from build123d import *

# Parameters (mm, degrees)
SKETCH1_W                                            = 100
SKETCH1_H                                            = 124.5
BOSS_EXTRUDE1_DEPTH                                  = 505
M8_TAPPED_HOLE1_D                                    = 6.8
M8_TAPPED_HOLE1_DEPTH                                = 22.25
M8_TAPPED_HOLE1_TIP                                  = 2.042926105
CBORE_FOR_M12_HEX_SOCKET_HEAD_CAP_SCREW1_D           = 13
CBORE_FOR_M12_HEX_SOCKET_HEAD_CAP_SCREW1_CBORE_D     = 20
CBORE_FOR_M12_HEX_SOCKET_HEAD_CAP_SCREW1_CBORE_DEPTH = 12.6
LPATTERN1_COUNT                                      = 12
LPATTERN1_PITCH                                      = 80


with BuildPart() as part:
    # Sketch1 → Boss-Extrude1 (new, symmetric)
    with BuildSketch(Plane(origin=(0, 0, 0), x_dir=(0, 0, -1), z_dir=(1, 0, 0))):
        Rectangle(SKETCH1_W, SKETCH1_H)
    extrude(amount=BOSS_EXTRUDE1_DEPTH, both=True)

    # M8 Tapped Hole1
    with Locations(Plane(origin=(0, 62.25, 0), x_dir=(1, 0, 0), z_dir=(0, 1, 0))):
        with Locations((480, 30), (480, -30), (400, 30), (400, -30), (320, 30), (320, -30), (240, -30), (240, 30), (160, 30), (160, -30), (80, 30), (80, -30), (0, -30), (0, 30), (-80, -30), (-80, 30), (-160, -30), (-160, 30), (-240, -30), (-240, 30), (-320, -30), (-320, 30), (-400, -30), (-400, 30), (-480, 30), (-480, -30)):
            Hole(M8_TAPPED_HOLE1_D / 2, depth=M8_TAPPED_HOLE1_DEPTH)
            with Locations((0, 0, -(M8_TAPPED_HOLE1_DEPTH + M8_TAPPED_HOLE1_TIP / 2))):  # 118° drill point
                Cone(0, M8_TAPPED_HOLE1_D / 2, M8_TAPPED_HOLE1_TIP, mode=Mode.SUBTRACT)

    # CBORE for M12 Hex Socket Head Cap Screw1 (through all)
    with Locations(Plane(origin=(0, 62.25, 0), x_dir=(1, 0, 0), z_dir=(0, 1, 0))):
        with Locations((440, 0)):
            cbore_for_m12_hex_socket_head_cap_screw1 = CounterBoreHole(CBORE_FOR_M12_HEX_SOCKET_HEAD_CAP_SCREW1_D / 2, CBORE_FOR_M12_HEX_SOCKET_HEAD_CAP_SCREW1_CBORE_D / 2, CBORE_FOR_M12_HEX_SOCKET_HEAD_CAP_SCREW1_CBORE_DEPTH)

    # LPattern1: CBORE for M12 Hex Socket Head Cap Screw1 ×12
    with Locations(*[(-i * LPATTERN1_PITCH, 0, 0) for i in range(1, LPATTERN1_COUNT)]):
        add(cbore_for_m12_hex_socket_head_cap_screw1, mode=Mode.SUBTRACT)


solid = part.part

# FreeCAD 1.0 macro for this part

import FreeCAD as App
import Part
import Sketcher
Q = App.Units.Quantity

doc = App.newDocument("Part")
body = doc.addObject("PartDesign::Body", "Body")

# Sketch on YZ plane
sketch1 = doc.addObject("Sketcher::SketchObject", "Sketch")
body.addObject(sketch1)
sketch1.AttachmentSupport = (doc.YZ_Plane, [""])
sketch1.MapMode = "FlatFace"
sketch1.addGeometry(Part.LineSegment(App.Vector(62, 50, 0), App.Vector(-62, 50, 0)), False)
sketch1.addGeometry(Part.LineSegment(App.Vector(-62, 50, 0), App.Vector(-62, -50, 0)), False)
sketch1.addGeometry(Part.LineSegment(App.Vector(-62, -50, 0), App.Vector(62, -50, 0)), False)
sketch1.addGeometry(Part.LineSegment(App.Vector(62, -50, 0), App.Vector(62, 50, 0)), False)
sketch1.addConstraint(Sketcher.Constraint("Coincident", 0, 2, 1, 1))
sketch1.addConstraint(Sketcher.Constraint("Coincident", 1, 2, 2, 1))
sketch1.addConstraint(Sketcher.Constraint("Coincident", 2, 2, 3, 1))
sketch1.addConstraint(Sketcher.Constraint("Coincident", 3, 2, 0, 1))
sketch1.addConstraint(Sketcher.Constraint("Horizontal", 0))
sketch1.addConstraint(Sketcher.Constraint("Vertical", 1))
sketch1.addConstraint(Sketcher.Constraint("Horizontal", 2))
sketch1.addConstraint(Sketcher.Constraint("Vertical", 3))
sketch1.addConstraint(Sketcher.Constraint("Symmetric", 0, 2, 2, 2, -1, 1))
sketch1.addConstraint(Sketcher.Constraint("DistanceY", 1, 2, 1, 1, Q("100 mm")))
sketch1.addConstraint(Sketcher.Constraint("DistanceX", 0, 2, 0, 1, Q("124.5 mm")))
pad1 = doc.addObject("PartDesign::Pad", "Pad")
body.addObject(pad1)
pad1.Profile = sketch1
pad1.Length = 1010
pad1.Midplane = True

# Sketch on XZ plane
sketch2 = doc.addObject("Sketcher::SketchObject", "Sketch001")
body.addObject(sketch2)
sketch2.AttachmentSupport = (doc.XZ_Plane, [""])
sketch2.MapMode = "FlatFace"
sketch2.AttachmentOffset = App.Placement(App.Vector(0, 0, -62.25), App.Rotation())
sketch2.addGeometry(Part.Circle(App.Vector(480, -30, 0), App.Vector(0, 0, 1), 3.4), False)
sketch2.addGeometry(Part.Circle(App.Vector(480, 30, 0), App.Vector(0, 0, 1), 3.4), False)
sketch2.addGeometry(Part.Circle(App.Vector(400, -30, 0), App.Vector(0, 0, 1), 3.4), False)
sketch2.addGeometry(Part.Circle(App.Vector(400, 30, 0), App.Vector(0, 0, 1), 3.4), False)
sketch2.addGeometry(Part.Circle(App.Vector(320, -30, 0), App.Vector(0, 0, 1), 3.4), False)
sketch2.addGeometry(Part.Circle(App.Vector(320, 30, 0), App.Vector(0, 0, 1), 3.4), False)
sketch2.addGeometry(Part.Circle(App.Vector(240, 30, 0), App.Vector(0, 0, 1), 3.4), False)
sketch2.addGeometry(Part.Circle(App.Vector(240, -30, 0), App.Vector(0, 0, 1), 3.4), False)
sketch2.addGeometry(Part.Circle(App.Vector(160, -30, 0), App.Vector(0, 0, 1), 3.4), False)
sketch2.addGeometry(Part.Circle(App.Vector(160, 30, 0), App.Vector(0, 0, 1), 3.4), False)
sketch2.addGeometry(Part.Circle(App.Vector(80, -30, 0), App.Vector(0, 0, 1), 3.4), False)
sketch2.addGeometry(Part.Circle(App.Vector(80, 30, 0), App.Vector(0, 0, 1), 3.4), False)
sketch2.addGeometry(Part.Circle(App.Vector(0, 30, 0), App.Vector(0, 0, 1), 3.4), False)
sketch2.addGeometry(Part.Circle(App.Vector(0, -30, 0), App.Vector(0, 0, 1), 3.4), False)
sketch2.addGeometry(Part.Circle(App.Vector(-80, 30, 0), App.Vector(0, 0, 1), 3.4), False)
sketch2.addGeometry(Part.Circle(App.Vector(-80, -30, 0), App.Vector(0, 0, 1), 3.4), False)
sketch2.addGeometry(Part.Circle(App.Vector(-160, 30, 0), App.Vector(0, 0, 1), 3.4), False)
sketch2.addGeometry(Part.Circle(App.Vector(-160, -30, 0), App.Vector(0, 0, 1), 3.4), False)
sketch2.addGeometry(Part.Circle(App.Vector(-240, 30, 0), App.Vector(0, 0, 1), 3.4), False)
sketch2.addGeometry(Part.Circle(App.Vector(-240, -30, 0), App.Vector(0, 0, 1), 3.4), False)
sketch2.addGeometry(Part.Circle(App.Vector(-320, 30, 0), App.Vector(0, 0, 1), 3.4), False)
sketch2.addGeometry(Part.Circle(App.Vector(-320, -30, 0), App.Vector(0, 0, 1), 3.4), False)
sketch2.addGeometry(Part.Circle(App.Vector(-400, 30, 0), App.Vector(0, 0, 1), 3.4), False)
sketch2.addGeometry(Part.Circle(App.Vector(-400, -30, 0), App.Vector(0, 0, 1), 3.4), False)
sketch2.addGeometry(Part.Circle(App.Vector(-480, -30, 0), App.Vector(0, 0, 1), 3.4), False)
sketch2.addGeometry(Part.Circle(App.Vector(-480, 30, 0), App.Vector(0, 0, 1), 3.4), False)
sketch2.addConstraint(Sketcher.Constraint("Equal", 0, 1))
sketch2.addConstraint(Sketcher.Constraint("Equal", 1, 2))
sketch2.addConstraint(Sketcher.Constraint("Equal", 2, 3))
sketch2.addConstraint(Sketcher.Constraint("Equal", 3, 4))
sketch2.addConstraint(Sketcher.Constraint("Equal", 4, 5))
sketch2.addConstraint(Sketcher.Constraint("Equal", 5, 6))
sketch2.addConstraint(Sketcher.Constraint("Equal", 6, 7))
sketch2.addConstraint(Sketcher.Constraint("Equal", 7, 8))
sketch2.addConstraint(Sketcher.Constraint("Equal", 8, 9))
sketch2.addConstraint(Sketcher.Constraint("Equal", 9, 10))
sketch2.addConstraint(Sketcher.Constraint("Equal", 10, 11))
sketch2.addConstraint(Sketcher.Constraint("Equal", 11, 12))
sketch2.addConstraint(Sketcher.Constraint("Equal", 12, 13))
sketch2.addConstraint(Sketcher.Constraint("Equal", 13, 14))
sketch2.addConstraint(Sketcher.Constraint("Equal", 14, 15))
sketch2.addConstraint(Sketcher.Constraint("Equal", 15, 16))
sketch2.addConstraint(Sketcher.Constraint("Equal", 16, 17))
sketch2.addConstraint(Sketcher.Constraint("Equal", 17, 18))
sketch2.addConstraint(Sketcher.Constraint("Equal", 18, 19))
sketch2.addConstraint(Sketcher.Constraint("Equal", 19, 20))
sketch2.addConstraint(Sketcher.Constraint("Equal", 20, 21))
sketch2.addConstraint(Sketcher.Constraint("Equal", 21, 22))
sketch2.addConstraint(Sketcher.Constraint("Equal", 22, 23))
sketch2.addConstraint(Sketcher.Constraint("Equal", 23, 24))
sketch2.addConstraint(Sketcher.Constraint("Equal", 24, 25))
sketch2.addConstraint(Sketcher.Constraint("Symmetric", 12, 3, 13, 3, -1, 1))
sketch2.addConstraint(Sketcher.Constraint("Symmetric", 10, 3, 14, 3, -1, 1))
sketch2.addConstraint(Sketcher.Constraint("Symmetric", 11, 3, 15, 3, -1, 1))
sketch2.addConstraint(Sketcher.Constraint("Symmetric", 8, 3, 16, 3, -1, 1))
sketch2.addConstraint(Sketcher.Constraint("Symmetric", 9, 3, 17, 3, -1, 1))
sketch2.addConstraint(Sketcher.Constraint("Symmetric", 7, 3, 18, 3, -1, 1))
sketch2.addConstraint(Sketcher.Constraint("Symmetric", 6, 3, 19, 3, -1, 1))
sketch2.addConstraint(Sketcher.Constraint("Symmetric", 4, 3, 20, 3, -1, 1))
sketch2.addConstraint(Sketcher.Constraint("Symmetric", 5, 3, 21, 3, -1, 1))
sketch2.addConstraint(Sketcher.Constraint("Symmetric", 2, 3, 22, 3, -1, 1))
sketch2.addConstraint(Sketcher.Constraint("Symmetric", 3, 3, 23, 3, -1, 1))
sketch2.addConstraint(Sketcher.Constraint("Symmetric", 1, 3, 24, 3, -1, 1))
sketch2.addConstraint(Sketcher.Constraint("Symmetric", 0, 3, 25, 3, -1, 1))
sketch2.addConstraint(Sketcher.Constraint("Symmetric", 11, 3, 14, 3, -2))
sketch2.addConstraint(Sketcher.Constraint("Symmetric", 9, 3, 16, 3, -2))
sketch2.addConstraint(Sketcher.Constraint("Symmetric", 6, 3, 18, 3, -2))
sketch2.addConstraint(Sketcher.Constraint("Symmetric", 5, 3, 20, 3, -2))
sketch2.addConstraint(Sketcher.Constraint("Symmetric", 3, 3, 22, 3, -2))
sketch2.addConstraint(Sketcher.Constraint("Symmetric", 0, 3, 24, 3, -2))
sketch2.addConstraint(Sketcher.Constraint("PointOnObject", 12, 3, -2))
sketch2.addConstraint(Sketcher.Constraint("Horizontal", 0, 3, 2, 3))
sketch2.addConstraint(Sketcher.Constraint("Horizontal", 2, 3, 4, 3))
sketch2.addConstraint(Sketcher.Constraint("Horizontal", 5, 3, 6, 3))
sketch2.addConstraint(Sketcher.Constraint("Horizontal", 7, 3, 8, 3))
sketch2.addConstraint(Sketcher.Constraint("Horizontal", 8, 3, 10, 3))
sketch2.addConstraint(Sketcher.Constraint("Horizontal", 11, 3, 12, 3))
sketch2.addConstraint(Sketcher.Constraint("Diameter", 0, Q("6.8 mm")))
sketch2.addConstraint(Sketcher.Constraint("DistanceX", -1, 1, 0, 3, Q("480 mm")))
sketch2.addConstraint(Sketcher.Constraint("DistanceY", 0, 3, -1, 1, Q("30 mm")))
sketch2.addConstraint(Sketcher.Constraint("DistanceX", -1, 1, 2, 3, Q("400 mm")))
sketch2.addConstraint(Sketcher.Constraint("DistanceX", -1, 1, 4, 3, Q("320 mm")))
sketch2.addConstraint(Sketcher.Constraint("DistanceX", -1, 1, 6, 3, Q("240 mm")))
sketch2.addConstraint(Sketcher.Constraint("DistanceX", -1, 1, 8, 3, Q("160 mm")))
sketch2.addConstraint(Sketcher.Constraint("DistanceX", -1, 1, 10, 3, Q("80 mm")))
doc.recompute()
hole = doc.addObject("PartDesign::Hole", "Hole")
body.addObject(hole)
hole.Profile = sketch2
hole.ThreadType = "None"
hole.Diameter = 6.8
hole.DepthType = "Dimension"
hole.Depth = 22.25
hole.DrillPoint = "Angled"
hole.DrillPointAngle = 118
hole.Reversed = True

# Sketch on XZ plane
sketch3 = doc.addObject("Sketcher::SketchObject", "Sketch002")
body.addObject(sketch3)
sketch3.AttachmentSupport = (doc.XZ_Plane, [""])
sketch3.MapMode = "FlatFace"
sketch3.AttachmentOffset = App.Placement(App.Vector(0, 0, -62.25), App.Rotation())
sketch3.addGeometry(Part.Circle(App.Vector(440, 0, 0), App.Vector(0, 0, 1), 6), False)
sketch3.addConstraint(Sketcher.Constraint("PointOnObject", 0, 3, -1))
sketch3.addConstraint(Sketcher.Constraint("Diameter", 0, Q("13 mm")))
sketch3.addConstraint(Sketcher.Constraint("DistanceX", -1, 1, 0, 3, Q("440 mm")))
doc.recompute()
hole2 = doc.addObject("PartDesign::Hole", "Hole001")
body.addObject(hole2)
hole2.Profile = sketch3
hole2.ThreadType = "None"
hole2.Diameter = 13
hole2.DepthType = "ThroughAll"
hole2.HoleCutType = "Counterbore"
hole2.HoleCutDiameter = 20
hole2.HoleCutDepth = 12.6
hole2.Reversed = True
doc.recompute()

linearpattern = doc.addObject("PartDesign::LinearPattern", "LinearPattern")
body.addObject(linearpattern)
linearpattern.Originals = [hole2]
linearpattern.Direction = (doc.X_Axis, [""])
linearpattern.Mode = "offset"
linearpattern.Offset = 80
linearpattern.Occurrences = 12
linearpattern.Reversed = True
body.Tip = linearpattern

doc.recompute()
